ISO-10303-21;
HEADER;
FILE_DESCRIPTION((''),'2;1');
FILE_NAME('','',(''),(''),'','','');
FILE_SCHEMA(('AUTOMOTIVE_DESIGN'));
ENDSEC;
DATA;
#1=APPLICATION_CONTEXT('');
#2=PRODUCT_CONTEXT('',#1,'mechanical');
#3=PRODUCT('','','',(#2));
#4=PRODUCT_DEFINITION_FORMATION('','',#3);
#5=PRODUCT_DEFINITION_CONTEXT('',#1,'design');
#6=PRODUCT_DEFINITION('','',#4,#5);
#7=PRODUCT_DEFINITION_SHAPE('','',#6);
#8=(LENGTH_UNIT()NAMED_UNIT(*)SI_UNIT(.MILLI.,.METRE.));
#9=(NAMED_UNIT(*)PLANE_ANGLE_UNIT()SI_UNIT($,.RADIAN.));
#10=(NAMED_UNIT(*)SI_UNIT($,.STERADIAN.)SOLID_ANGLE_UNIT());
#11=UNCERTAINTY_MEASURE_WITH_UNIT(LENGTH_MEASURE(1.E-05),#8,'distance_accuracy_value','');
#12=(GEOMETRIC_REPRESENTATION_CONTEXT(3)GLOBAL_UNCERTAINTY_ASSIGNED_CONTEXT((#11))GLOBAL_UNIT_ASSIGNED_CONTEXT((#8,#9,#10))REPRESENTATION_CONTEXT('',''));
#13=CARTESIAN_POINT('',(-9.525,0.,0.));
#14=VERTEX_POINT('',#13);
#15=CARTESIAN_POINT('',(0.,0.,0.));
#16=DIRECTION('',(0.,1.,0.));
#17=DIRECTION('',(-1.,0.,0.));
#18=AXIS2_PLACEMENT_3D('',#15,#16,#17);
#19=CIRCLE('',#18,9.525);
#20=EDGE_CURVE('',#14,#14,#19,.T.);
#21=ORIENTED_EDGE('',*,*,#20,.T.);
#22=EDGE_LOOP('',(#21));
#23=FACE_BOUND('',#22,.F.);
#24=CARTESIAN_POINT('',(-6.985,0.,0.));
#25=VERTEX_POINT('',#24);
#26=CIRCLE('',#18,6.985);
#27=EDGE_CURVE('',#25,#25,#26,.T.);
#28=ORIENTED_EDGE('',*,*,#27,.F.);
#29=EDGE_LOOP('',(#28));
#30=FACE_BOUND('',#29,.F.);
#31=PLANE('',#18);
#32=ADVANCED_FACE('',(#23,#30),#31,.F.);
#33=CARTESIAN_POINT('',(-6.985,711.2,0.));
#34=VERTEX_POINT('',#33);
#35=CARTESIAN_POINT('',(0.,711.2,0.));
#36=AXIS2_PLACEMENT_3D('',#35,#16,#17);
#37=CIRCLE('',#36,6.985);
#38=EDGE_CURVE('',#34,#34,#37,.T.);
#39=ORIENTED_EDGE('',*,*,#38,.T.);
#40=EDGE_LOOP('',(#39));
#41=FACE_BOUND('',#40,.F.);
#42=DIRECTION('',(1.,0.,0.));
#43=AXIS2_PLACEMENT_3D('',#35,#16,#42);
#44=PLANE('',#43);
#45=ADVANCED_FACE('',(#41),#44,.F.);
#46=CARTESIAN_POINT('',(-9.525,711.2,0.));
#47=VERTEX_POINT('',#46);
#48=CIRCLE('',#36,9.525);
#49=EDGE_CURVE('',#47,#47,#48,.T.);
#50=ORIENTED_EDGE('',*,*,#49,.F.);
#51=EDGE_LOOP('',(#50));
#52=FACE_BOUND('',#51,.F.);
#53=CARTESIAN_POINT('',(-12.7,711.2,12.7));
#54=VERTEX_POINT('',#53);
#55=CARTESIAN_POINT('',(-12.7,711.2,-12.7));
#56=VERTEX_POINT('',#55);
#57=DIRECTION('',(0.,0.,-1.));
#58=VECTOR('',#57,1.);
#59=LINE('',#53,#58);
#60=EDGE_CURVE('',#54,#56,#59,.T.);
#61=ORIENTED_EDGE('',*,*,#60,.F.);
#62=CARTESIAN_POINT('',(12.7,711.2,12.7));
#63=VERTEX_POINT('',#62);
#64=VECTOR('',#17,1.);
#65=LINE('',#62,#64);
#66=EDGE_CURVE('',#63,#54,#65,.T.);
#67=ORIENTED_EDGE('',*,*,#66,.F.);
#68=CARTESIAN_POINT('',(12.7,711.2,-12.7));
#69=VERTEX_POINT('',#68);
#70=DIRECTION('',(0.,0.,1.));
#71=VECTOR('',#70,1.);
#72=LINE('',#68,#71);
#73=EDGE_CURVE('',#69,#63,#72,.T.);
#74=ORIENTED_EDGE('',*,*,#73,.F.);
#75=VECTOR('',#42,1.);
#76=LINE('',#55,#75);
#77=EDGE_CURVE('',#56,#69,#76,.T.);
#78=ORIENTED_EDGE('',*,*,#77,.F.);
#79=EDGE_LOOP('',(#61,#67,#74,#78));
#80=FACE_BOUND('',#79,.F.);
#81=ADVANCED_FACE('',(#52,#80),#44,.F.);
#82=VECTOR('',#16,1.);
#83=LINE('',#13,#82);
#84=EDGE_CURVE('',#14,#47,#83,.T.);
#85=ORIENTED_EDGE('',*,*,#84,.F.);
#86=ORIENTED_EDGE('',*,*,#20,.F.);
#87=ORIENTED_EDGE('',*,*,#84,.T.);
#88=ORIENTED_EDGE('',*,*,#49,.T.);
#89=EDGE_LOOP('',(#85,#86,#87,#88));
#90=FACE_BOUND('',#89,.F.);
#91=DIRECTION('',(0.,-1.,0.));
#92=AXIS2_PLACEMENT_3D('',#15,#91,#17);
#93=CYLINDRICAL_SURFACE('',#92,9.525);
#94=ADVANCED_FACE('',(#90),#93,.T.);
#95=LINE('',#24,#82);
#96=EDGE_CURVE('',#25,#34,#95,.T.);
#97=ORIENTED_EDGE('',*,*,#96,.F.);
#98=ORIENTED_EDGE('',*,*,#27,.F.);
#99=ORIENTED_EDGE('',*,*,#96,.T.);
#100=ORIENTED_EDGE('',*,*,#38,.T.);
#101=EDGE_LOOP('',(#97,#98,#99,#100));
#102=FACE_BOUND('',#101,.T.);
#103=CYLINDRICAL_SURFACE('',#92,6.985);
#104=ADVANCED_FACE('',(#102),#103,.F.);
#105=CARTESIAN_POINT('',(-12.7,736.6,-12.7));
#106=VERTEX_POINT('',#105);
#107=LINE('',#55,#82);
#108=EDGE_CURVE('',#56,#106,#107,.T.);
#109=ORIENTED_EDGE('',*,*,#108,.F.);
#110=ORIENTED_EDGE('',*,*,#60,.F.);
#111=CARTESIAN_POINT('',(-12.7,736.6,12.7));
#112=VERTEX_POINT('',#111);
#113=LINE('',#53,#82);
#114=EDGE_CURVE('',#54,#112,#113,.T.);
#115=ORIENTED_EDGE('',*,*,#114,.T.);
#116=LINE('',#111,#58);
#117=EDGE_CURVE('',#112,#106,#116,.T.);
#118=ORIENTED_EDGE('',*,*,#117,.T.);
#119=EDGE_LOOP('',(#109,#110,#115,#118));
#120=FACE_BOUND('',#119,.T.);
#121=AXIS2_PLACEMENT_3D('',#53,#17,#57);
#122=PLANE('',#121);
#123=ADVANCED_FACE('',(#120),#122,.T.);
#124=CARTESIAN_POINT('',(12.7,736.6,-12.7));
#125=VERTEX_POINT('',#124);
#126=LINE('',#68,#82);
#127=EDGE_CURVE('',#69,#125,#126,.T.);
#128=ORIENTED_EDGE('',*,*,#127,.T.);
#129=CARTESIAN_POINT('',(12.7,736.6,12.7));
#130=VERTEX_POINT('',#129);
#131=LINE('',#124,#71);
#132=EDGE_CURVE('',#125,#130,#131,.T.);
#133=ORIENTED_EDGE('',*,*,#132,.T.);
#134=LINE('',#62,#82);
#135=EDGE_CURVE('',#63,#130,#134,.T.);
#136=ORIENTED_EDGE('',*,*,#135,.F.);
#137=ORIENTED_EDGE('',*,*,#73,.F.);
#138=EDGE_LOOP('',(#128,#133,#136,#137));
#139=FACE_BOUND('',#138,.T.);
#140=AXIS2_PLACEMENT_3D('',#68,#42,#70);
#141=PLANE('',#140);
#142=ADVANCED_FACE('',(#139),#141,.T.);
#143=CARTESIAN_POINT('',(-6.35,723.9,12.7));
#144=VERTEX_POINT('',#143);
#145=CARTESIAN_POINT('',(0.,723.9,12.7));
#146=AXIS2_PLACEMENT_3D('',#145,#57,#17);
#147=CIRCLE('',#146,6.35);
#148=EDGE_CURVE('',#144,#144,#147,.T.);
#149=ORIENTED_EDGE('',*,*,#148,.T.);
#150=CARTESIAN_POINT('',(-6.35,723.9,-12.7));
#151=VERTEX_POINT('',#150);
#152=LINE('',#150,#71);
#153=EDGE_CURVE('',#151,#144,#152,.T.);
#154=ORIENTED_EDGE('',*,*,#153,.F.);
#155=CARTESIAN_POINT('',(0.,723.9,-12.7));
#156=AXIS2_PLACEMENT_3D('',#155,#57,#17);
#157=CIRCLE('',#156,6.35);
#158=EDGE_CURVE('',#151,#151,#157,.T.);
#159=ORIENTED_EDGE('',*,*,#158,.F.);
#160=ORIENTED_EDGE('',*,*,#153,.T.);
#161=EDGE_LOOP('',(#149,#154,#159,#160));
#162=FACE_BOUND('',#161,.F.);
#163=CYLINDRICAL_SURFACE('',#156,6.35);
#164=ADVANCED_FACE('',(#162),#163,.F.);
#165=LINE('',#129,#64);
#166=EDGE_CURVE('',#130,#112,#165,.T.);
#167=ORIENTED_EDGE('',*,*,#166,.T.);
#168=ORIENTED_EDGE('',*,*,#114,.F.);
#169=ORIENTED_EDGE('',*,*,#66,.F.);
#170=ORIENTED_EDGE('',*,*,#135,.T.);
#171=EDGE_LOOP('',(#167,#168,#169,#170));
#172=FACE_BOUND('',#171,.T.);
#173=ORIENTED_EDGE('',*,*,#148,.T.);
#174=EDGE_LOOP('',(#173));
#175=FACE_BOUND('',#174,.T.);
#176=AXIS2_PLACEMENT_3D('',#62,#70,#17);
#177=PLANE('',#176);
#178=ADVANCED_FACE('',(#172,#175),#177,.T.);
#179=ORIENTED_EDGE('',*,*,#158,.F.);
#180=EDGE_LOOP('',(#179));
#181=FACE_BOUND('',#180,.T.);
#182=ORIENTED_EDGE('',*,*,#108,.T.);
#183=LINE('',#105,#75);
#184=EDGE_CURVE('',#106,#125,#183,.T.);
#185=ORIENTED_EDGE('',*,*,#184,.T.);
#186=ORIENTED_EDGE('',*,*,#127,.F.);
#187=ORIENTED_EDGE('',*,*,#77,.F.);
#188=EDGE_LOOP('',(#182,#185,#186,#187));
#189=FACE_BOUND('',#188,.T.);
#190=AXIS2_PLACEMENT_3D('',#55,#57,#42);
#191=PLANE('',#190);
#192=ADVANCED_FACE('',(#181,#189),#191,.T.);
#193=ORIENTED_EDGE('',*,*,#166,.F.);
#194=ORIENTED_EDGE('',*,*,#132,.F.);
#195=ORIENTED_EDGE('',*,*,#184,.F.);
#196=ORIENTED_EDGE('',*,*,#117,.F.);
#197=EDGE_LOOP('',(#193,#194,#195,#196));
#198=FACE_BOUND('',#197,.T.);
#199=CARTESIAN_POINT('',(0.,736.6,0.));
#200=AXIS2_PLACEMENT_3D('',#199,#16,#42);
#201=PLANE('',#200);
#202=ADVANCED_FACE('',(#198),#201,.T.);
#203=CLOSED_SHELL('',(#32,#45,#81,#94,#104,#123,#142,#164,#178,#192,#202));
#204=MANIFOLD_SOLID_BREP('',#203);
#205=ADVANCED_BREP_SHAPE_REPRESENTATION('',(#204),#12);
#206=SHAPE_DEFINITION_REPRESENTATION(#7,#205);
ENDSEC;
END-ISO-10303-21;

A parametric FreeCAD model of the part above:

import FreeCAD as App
import Part
import Sketcher
Q = App.Units.Quantity

doc = App.newDocument("Part")
body = doc.addObject("PartDesign::Body", "Body")

sketch1 = body.newObject("Sketcher::SketchObject", "Sketch")
sketch1.AttachmentSupport = (doc.getObject("XZ_Plane"), [""])
sketch1.MapMode = "FlatFace"
sketch1.addGeometry([
    Part.Circle(App.Vector(0, 0, 0), App.Vector(0, 0, 1), 9.525),
    Part.Circle(App.Vector(0, 0, 0), App.Vector(0, 0, 1), 6.985),
], False)
sketch1.addConstraint([
    Sketcher.Constraint("Coincident", 0, 3, -1, 1),
    Sketcher.Constraint("Coincident", 1, 3, -1, 1),
    Sketcher.Constraint("Diameter", 0, Q("0.75 in")),
    Sketcher.Constraint("Diameter", 1, Q("0.55 in")),
])
pad1 = body.newObject("PartDesign::Pad", "Pad")
pad1.Profile = sketch1
pad1.Length = Q("28 in")
pad1.Reversed = True

sketch2 = body.newObject("Sketcher::SketchObject", "Sketch001")
sketch2.AttachmentSupport = (doc.getObject("XZ_Plane"), [""])
sketch2.MapMode = "FlatFace"
sketch2.AttachmentOffset = App.Placement(App.Vector(0, 0, -28 * 25.4), App.Rotation())
sketch2.addGeometry([
    Part.LineSegment(App.Vector(-12.7, 12.7, 0), App.Vector(12.7, 12.7, 0)),
    Part.LineSegment(App.Vector(12.7, 12.7, 0), App.Vector(12.7, -12.7, 0)),
    Part.LineSegment(App.Vector(12.7, -12.7, 0), App.Vector(-12.7, -12.7, 0)),
    Part.LineSegment(App.Vector(-12.7, -12.7, 0), App.Vector(-12.7, 12.7, 0)),
], False)
sketch2.addConstraint([
    Sketcher.Constraint("Coincident", 0, 2, 1, 1),
    Sketcher.Constraint("Coincident", 1, 2, 2, 1),
    Sketcher.Constraint("Coincident", 2, 2, 3, 1),
    Sketcher.Constraint("Coincident", 3, 2, 0, 1),
    Sketcher.Constraint("Horizontal", 0),
    Sketcher.Constraint("Vertical", 1),
    Sketcher.Constraint("Horizontal", 2),
    Sketcher.Constraint("Vertical", 3),
    Sketcher.Constraint("Symmetric", 0, 2, 2, 2, -1, 1),
    Sketcher.Constraint("Equal", 2, 1),
    Sketcher.Constraint("DistanceX", 0, 1, 0, 2, Q("1 in")),
])
pad2 = body.newObject("PartDesign::Pad", "Pad001")
pad2.Profile = sketch2
pad2.Length = Q("1 in")
pad2.Reversed = True

sketch3 = body.newObject("Sketcher::SketchObject", "Sketch002")
sketch3.AttachmentSupport = (doc.getObject("XY_Plane"), [""])
sketch3.MapMode = "FlatFace"
sketch3.AttachmentOffset = App.Placement(App.Vector(0, 0, -0.5 * 25.4), App.Rotation())
sketch3.addGeometry(Part.Circle(App.Vector(0, 723.9, 0), App.Vector(0, 0, 1), 6.35), False)
sketch3.addConstraint([
    Sketcher.Constraint("PointOnObject", 0, 3, -2),
    Sketcher.Constraint("Diameter", 0, Q("0.5 in")),
    Sketcher.Constraint("DistanceY", -1, 1, 0, 3, Q("28.5 in")),
])
pocket1 = body.newObject("PartDesign::Pocket", "Pocket")
pocket1.Profile = sketch3
pocket1.Length = Q("1.6875 in")
pocket1.Reversed = True

doc.recompute()
